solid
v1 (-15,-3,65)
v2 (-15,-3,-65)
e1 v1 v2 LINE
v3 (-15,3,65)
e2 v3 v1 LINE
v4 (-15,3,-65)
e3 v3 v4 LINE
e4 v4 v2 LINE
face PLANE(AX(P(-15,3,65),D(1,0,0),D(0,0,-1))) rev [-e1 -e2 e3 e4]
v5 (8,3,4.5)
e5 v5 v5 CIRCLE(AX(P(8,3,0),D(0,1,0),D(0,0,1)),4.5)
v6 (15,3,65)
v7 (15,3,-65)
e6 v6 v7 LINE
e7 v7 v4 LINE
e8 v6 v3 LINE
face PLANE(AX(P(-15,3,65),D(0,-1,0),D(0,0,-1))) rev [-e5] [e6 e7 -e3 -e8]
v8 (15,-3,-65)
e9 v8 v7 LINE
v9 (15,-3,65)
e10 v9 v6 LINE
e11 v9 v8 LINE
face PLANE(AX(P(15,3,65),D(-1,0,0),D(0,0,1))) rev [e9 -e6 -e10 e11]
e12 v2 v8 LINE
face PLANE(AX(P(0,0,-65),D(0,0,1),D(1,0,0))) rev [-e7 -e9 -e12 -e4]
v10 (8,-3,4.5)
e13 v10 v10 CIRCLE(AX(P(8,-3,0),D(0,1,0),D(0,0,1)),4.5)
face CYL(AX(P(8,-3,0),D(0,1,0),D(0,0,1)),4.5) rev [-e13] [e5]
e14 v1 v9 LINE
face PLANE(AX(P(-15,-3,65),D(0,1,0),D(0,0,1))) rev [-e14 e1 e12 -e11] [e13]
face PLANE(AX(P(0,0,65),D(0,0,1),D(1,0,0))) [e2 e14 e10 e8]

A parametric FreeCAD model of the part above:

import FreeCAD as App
import Part
import Sketcher


def add_polygon(sketch, points):
    """Adds a closed chain of lines whose ends are joined by coincident constraints."""
    first, n = sketch.GeometryCount, len(points)
    for a, b in zip(points, points[1:] + points[:1]):
        sketch.addGeometry(Part.LineSegment(App.Vector(*a, 0), App.Vector(*b, 0)), False)
    for i in range(n):
        sketch.addConstraint(Sketcher.Constraint("Coincident", first + i, 2, first + (i + 1) % n, 1))

doc = App.newDocument("Part")
params = doc.addObject("Spreadsheet::Sheet", "Params")
for row, (alias, value) in enumerate([
    ("sketch1_width", "30 mm"),
    ("sketch1_height", "6 mm"),
    ("pad1_length", "130 mm"),
    ("sketch2_diameter", "9 mm"),
], start=1):
    params.set(f"A{row}", alias)
    params.set(f"B{row}", "=" + value)
    params.setAlias(f"B{row}", alias)

body = doc.addObject("PartDesign::Body", "Body")

sketch1 = body.newObject("Sketcher::SketchObject", "Sketch")
sketch1.AttachmentSupport = (doc.getObject("XY_Plane"), [""])
sketch1.MapMode = "FlatFace"
add_polygon(sketch1, [(-15, 3), (-15, -3), (15, -3), (15, 3)])
sketch1.addConstraint(Sketcher.Constraint("Vertical", 0))
sketch1.addConstraint(Sketcher.Constraint("Horizontal", 1))
sketch1.addConstraint(Sketcher.Constraint("Vertical", 2))
sketch1.addConstraint(Sketcher.Constraint("Horizontal", 3))
sketch1.addConstraint(Sketcher.Constraint("Symmetric", 0, 2, 2, 2, -1, 1))
sketch1.addConstraint(Sketcher.Constraint("DistanceX", 1, 1, 1, 2, 30.0))
sketch1.addConstraint(Sketcher.Constraint("DistanceY", 0, 2, 0, 1, 6.0))
sketch1.setExpression("Constraints[9]", "Params.sketch1_width")
sketch1.setExpression("Constraints[10]", "Params.sketch1_height")
pad1 = body.newObject("PartDesign::Pad", "Pad")
pad1.Profile = sketch1
pad1.setExpression("Length", "Params.pad1_length")
pad1.Midplane = True

sketch2 = body.newObject("Sketcher::SketchObject", "Sketch001")
sketch2.AttachmentSupport = (doc.getObject("XZ_Plane"), [""])
sketch2.MapMode = "FlatFace"
sketch2.addGeometry(Part.Circle(App.Vector(8, 0, 0), App.Vector(0, 0, 1), 4.5), False)
sketch2.addConstraint(Sketcher.Constraint("PointOnObject", 0, 3, -1))
sketch2.addConstraint(Sketcher.Constraint("Diameter", 0, 9.0))
sketch2.addConstraint(Sketcher.Constraint("DistanceX", -1, 1, 0, 3, 8.0))
sketch2.setExpression("Constraints[1]", "Params.sketch2_diameter")
pocket1 = body.newObject("PartDesign::Pocket", "Pocket")
pocket1.Profile = sketch2
pocket1.Type = "ThroughAll"
pocket1.Midplane = True

doc.recompute()
